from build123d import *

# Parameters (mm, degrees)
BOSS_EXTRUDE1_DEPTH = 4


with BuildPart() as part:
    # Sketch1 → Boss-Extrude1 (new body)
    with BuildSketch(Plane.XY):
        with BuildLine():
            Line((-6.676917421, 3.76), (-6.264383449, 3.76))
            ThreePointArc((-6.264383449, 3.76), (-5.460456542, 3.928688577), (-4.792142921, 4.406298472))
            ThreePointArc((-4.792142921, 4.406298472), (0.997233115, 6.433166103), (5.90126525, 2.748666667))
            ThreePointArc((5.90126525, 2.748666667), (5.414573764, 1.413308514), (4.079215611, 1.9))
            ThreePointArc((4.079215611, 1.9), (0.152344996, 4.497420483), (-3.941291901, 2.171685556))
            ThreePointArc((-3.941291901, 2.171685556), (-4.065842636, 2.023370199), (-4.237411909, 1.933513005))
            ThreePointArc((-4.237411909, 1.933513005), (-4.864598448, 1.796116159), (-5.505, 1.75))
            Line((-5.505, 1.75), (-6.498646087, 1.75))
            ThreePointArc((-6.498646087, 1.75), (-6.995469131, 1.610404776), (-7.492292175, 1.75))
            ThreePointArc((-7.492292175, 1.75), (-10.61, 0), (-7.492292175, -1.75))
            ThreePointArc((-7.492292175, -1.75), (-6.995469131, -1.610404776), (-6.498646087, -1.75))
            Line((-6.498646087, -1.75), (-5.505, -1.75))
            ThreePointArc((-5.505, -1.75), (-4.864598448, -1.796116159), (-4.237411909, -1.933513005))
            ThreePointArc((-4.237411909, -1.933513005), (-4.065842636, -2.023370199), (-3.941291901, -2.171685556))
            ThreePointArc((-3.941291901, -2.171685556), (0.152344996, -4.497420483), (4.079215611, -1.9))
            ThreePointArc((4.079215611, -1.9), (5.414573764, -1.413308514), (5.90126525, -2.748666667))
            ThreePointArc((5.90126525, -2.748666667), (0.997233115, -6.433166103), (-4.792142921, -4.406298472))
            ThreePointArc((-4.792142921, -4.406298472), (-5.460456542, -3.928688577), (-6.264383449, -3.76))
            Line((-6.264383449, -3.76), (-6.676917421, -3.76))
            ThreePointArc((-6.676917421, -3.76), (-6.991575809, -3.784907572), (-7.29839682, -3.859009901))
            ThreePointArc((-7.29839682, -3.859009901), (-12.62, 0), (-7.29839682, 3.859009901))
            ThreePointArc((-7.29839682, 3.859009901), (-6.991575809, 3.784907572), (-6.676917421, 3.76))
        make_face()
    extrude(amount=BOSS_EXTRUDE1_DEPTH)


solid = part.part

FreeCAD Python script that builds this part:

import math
import FreeCAD as App
import Part
import Sketcher
from FreeCAD import Vector
Q = App.Units.Quantity

doc = App.newDocument("Part")
body = doc.addObject("PartDesign::Body", "Body")

sketch1 = doc.addObject("Sketcher::SketchObject", "Sketch")
body.addObject(sketch1)
sketch1.AttachmentSupport = (doc.XY_Plane, [""])
sketch1.MapMode = "FlatFace"
sketch1.addGeometry(Part.LineSegment(Vector(-6.264383, 3.76, 0), Vector(-6.676917, 3.76, 0)), False)
sketch1.addGeometry(Part.ArcOfCircle(Part.Circle(Vector(-6.676917, 5.76, 0), Vector(0, 0, 1), 2), math.radians(-108.103814), math.radians(-90)), False)
sketch1.addGeometry(Part.ArcOfCircle(Part.Circle(Vector(-8.56, 0, 0), Vector(0, 0, 1), 4.06), math.radians(71.896186), math.radians(288.103814)), False)
sketch1.addGeometry(Part.ArcOfCircle(Part.Circle(Vector(-6.676917, -5.76, 0), Vector(0, 0, 1), 2), math.radians(90), math.radians(108.103814)), False)
sketch1.addGeometry(Part.LineSegment(Vector(-6.676917, -3.76, 0), Vector(-6.264383, -3.76, 0)), False)
sketch1.addGeometry(Part.ArcOfCircle(Part.Circle(Vector(-6.264383, -5.76, 0), Vector(0, 0, 1), 2), math.radians(42.598038), math.radians(90)), False)
sketch1.addGeometry(Part.ArcOfCircle(Part.Circle(Vector(0, 0, 0), Vector(0, 0, 1), 6.51), math.radians(-137.401962), math.radians(-24.974965)), False)
sketch1.addGeometry(Part.ArcOfCircle(Part.Circle(Vector(4.99024, -2.324333, 0), Vector(0, 0, 1), 1.005), math.radians(-24.974965), math.radians(155.025035)), False)
sketch1.addGeometry(Part.ArcOfCircle(Part.Circle(Vector(0, 0, 0), Vector(0, 0, 1), 4.5), math.radians(-151.14486), math.radians(-24.974965)), False)
sketch1.addGeometry(Part.ArcOfCircle(Part.Circle(Vector(-4.379213, -2.412984, 0), Vector(0, 0, 1), 0.5), math.radians(28.85514), math.radians(73.524661)), False)
sketch1.addGeometry(Part.ArcOfCircle(Part.Circle(Vector(-5.505, -6.219592, 0), Vector(0, 0, 1), 4.469592), math.radians(73.524661), math.radians(90)), False)
sketch1.addGeometry(Part.LineSegment(Vector(-5.505, -1.75, 0), Vector(-6.498646, -1.75, 0)), False)
sketch1.addGeometry(Part.ArcOfCircle(Part.Circle(Vector(-6.995469, -2.564305, 0), Vector(0, 0, 1), 0.953901), math.radians(58.61185), math.radians(121.38815)), False)
sketch1.addGeometry(Part.ArcOfCircle(Part.Circle(Vector(-8.56, 0, 0), Vector(0, 0, 1), 2.05), math.radians(58.61185), math.radians(301.38815)), False)
sketch1.addGeometry(Part.ArcOfCircle(Part.Circle(Vector(-6.995469, 2.564305, 0), Vector(0, 0, 1), 0.953901), math.radians(-121.38815), math.radians(-58.61185)), False)
sketch1.addGeometry(Part.LineSegment(Vector(-6.498646, 1.75, 0), Vector(-5.505, 1.75, 0)), False)
sketch1.addGeometry(Part.ArcOfCircle(Part.Circle(Vector(-5.505, 6.219592, 0), Vector(0, 0, 1), 4.469592), math.radians(-90), math.radians(-73.524661)), False)
sketch1.addGeometry(Part.ArcOfCircle(Part.Circle(Vector(-4.379213, 2.412984, 0), Vector(0, 0, 1), 0.5), math.radians(-73.524661), math.radians(-28.85514)), False)
sketch1.addGeometry(Part.ArcOfCircle(Part.Circle(Vector(0, 0, 0), Vector(0, 0, 1), 4.5), math.radians(24.974965), math.radians(151.14486)), False)
sketch1.addGeometry(Part.ArcOfCircle(Part.Circle(Vector(4.99024, 2.324333, 0), Vector(0, 0, 1), 1.005), math.radians(-155.025035), math.radians(24.974965)), False)
sketch1.addGeometry(Part.ArcOfCircle(Part.Circle(Vector(0, 0, 0), Vector(0, 0, 1), 6.51), math.radians(24.974965), math.radians(137.401962)), False)
sketch1.addGeometry(Part.ArcOfCircle(Part.Circle(Vector(-6.264383, 5.76, 0), Vector(0, 0, 1), 2), math.radians(-90), math.radians(-42.598038)), False)
sketch1.addConstraint(Sketcher.Constraint("Tangent", 0, 2, 1, 2))
sketch1.addConstraint(Sketcher.Constraint("Tangent", 1, 1, 2, 1))
sketch1.addConstraint(Sketcher.Constraint("Tangent", 2, 2, 3, 2))
sketch1.addConstraint(Sketcher.Constraint("Tangent", 3, 1, 4, 1))
sketch1.addConstraint(Sketcher.Constraint("Tangent", 4, 2, 5, 2))
sketch1.addConstraint(Sketcher.Constraint("Tangent", 5, 1, 6, 1))
sketch1.addConstraint(Sketcher.Constraint("Tangent", 6, 2, 7, 1))
sketch1.addConstraint(Sketcher.Constraint("Tangent", 7, 2, 8, 2))
sketch1.addConstraint(Sketcher.Constraint("Tangent", 8, 1, 9, 1))
sketch1.addConstraint(Sketcher.Constraint("Tangent", 9, 2, 10, 1))
sketch1.addConstraint(Sketcher.Constraint("Tangent", 10, 2, 11, 1))
sketch1.addConstraint(Sketcher.Constraint("Coincident", 11, 2, 12, 1))
sketch1.addConstraint(Sketcher.Constraint("Tangent", 12, 2, 13, 2))
sketch1.addConstraint(Sketcher.Constraint("Tangent", 13, 1, 14, 1))
sketch1.addConstraint(Sketcher.Constraint("Coincident", 14, 2, 15, 1))
sketch1.addConstraint(Sketcher.Constraint("Tangent", 15, 2, 16, 1))
sketch1.addConstraint(Sketcher.Constraint("Tangent", 16, 2, 17, 1))
sketch1.addConstraint(Sketcher.Constraint("Tangent", 17, 2, 18, 2))
sketch1.addConstraint(Sketcher.Constraint("Tangent", 18, 1, 19, 1))
sketch1.addConstraint(Sketcher.Constraint("Tangent", 19, 2, 20, 1))
sketch1.addConstraint(Sketcher.Constraint("Tangent", 20, 2, 21, 2))
sketch1.addConstraint(Sketcher.Constraint("Tangent", 21, 1, 0, 1))
sketch1.addConstraint(Sketcher.Constraint("Horizontal", 0))
sketch1.addConstraint(Sketcher.Constraint("Horizontal", 4))
sketch1.addConstraint(Sketcher.Constraint("Horizontal", 11))
sketch1.addConstraint(Sketcher.Constraint("Horizontal", 15))
sketch1.addConstraint(Sketcher.Constraint("Coincident", 6, 3, -1, 1))
sketch1.addConstraint(Sketcher.Constraint("Coincident", 8, 3, -1, 1))
sketch1.addConstraint(Sketcher.Constraint("Coincident", 18, 3, -1, 1))
sketch1.addConstraint(Sketcher.Constraint("Coincident", 20, 3, -1, 1))
sketch1.addConstraint(Sketcher.Constraint("Coincident", 13, 3, 2, 3))
sketch1.addConstraint(Sketcher.Constraint("Equal", 1, 3))
sketch1.addConstraint(Sketcher.Constraint("Equal", 3, 5))
sketch1.addConstraint(Sketcher.Constraint("Equal", 12, 14))
sketch1.addConstraint(Sketcher.Constraint("Equal", 10, 16))
sketch1.addConstraint(Sketcher.Constraint("Equal", 9, 17))
sketch1.addConstraint(Sketcher.Constraint("Equal", 8, 18))
sketch1.addConstraint(Sketcher.Constraint("Equal", 7, 19))
sketch1.addConstraint(Sketcher.Constraint("Equal", 5, 21))
sketch1.addConstraint(Sketcher.Constraint("Symmetric", 1, 3, 3, 3, -1))
sketch1.addConstraint(Sketcher.Constraint("Symmetric", 10, 3, 16, 3, -1))
sketch1.addConstraint(Sketcher.Constraint("Horizontal", 11, 2, 12, 2))
sketch1.addConstraint(Sketcher.Constraint("Horizontal", 13, 1, 14, 2))
sketch1.addConstraint(Sketcher.Constraint("Vertical", 7, 3, 19, 3))
sketch1.addConstraint(Sketcher.Constraint("Radius", 1, Q("2 mm")))
sketch1.addConstraint(Sketcher.Constraint("Radius", 8, Q("4.5 mm")))
sketch1.addConstraint(Sketcher.Constraint("Radius", 9, Q("0.5 mm")))
sketch1.addConstraint(Sketcher.Constraint("Radius", 2, Q("4.06 mm")))
sketch1.addConstraint(Sketcher.Constraint("Radius", 6, Q("6.51 mm")))
sketch1.addConstraint(Sketcher.Constraint("Radius", 13, Q("2.05 mm")))
sketch1.addConstraint(Sketcher.Constraint("DistanceY", 7, 2, -1, 1, Q("1.9 mm")))
sketch1.addConstraint(Sketcher.Constraint("Radius", 12, Q("0.953901 mm")))
sketch1.addConstraint(Sketcher.Constraint("DistanceY", -1, 1, 1, 3, Q("5.76 mm")))
sketch1.addConstraint(Sketcher.Constraint("DistanceX", 2, 3, -1, 1, Q("8.56 mm")))
sketch1.addConstraint(Sketcher.Constraint("DistanceY", 10, 2, -1, 1, Q("1.75 mm")))
sketch1.addConstraint(Sketcher.Constraint("DistanceX", 10, 3, -1, 1, Q("5.505 mm")))
sketch1.addConstraint(Sketcher.Constraint("Radius", 10, Q("4.469592 mm")))
pad1 = doc.addObject("PartDesign::Pad", "Pad")
body.addObject(pad1)
pad1.Profile = sketch1
pad1.Length = 4

doc.recompute()
